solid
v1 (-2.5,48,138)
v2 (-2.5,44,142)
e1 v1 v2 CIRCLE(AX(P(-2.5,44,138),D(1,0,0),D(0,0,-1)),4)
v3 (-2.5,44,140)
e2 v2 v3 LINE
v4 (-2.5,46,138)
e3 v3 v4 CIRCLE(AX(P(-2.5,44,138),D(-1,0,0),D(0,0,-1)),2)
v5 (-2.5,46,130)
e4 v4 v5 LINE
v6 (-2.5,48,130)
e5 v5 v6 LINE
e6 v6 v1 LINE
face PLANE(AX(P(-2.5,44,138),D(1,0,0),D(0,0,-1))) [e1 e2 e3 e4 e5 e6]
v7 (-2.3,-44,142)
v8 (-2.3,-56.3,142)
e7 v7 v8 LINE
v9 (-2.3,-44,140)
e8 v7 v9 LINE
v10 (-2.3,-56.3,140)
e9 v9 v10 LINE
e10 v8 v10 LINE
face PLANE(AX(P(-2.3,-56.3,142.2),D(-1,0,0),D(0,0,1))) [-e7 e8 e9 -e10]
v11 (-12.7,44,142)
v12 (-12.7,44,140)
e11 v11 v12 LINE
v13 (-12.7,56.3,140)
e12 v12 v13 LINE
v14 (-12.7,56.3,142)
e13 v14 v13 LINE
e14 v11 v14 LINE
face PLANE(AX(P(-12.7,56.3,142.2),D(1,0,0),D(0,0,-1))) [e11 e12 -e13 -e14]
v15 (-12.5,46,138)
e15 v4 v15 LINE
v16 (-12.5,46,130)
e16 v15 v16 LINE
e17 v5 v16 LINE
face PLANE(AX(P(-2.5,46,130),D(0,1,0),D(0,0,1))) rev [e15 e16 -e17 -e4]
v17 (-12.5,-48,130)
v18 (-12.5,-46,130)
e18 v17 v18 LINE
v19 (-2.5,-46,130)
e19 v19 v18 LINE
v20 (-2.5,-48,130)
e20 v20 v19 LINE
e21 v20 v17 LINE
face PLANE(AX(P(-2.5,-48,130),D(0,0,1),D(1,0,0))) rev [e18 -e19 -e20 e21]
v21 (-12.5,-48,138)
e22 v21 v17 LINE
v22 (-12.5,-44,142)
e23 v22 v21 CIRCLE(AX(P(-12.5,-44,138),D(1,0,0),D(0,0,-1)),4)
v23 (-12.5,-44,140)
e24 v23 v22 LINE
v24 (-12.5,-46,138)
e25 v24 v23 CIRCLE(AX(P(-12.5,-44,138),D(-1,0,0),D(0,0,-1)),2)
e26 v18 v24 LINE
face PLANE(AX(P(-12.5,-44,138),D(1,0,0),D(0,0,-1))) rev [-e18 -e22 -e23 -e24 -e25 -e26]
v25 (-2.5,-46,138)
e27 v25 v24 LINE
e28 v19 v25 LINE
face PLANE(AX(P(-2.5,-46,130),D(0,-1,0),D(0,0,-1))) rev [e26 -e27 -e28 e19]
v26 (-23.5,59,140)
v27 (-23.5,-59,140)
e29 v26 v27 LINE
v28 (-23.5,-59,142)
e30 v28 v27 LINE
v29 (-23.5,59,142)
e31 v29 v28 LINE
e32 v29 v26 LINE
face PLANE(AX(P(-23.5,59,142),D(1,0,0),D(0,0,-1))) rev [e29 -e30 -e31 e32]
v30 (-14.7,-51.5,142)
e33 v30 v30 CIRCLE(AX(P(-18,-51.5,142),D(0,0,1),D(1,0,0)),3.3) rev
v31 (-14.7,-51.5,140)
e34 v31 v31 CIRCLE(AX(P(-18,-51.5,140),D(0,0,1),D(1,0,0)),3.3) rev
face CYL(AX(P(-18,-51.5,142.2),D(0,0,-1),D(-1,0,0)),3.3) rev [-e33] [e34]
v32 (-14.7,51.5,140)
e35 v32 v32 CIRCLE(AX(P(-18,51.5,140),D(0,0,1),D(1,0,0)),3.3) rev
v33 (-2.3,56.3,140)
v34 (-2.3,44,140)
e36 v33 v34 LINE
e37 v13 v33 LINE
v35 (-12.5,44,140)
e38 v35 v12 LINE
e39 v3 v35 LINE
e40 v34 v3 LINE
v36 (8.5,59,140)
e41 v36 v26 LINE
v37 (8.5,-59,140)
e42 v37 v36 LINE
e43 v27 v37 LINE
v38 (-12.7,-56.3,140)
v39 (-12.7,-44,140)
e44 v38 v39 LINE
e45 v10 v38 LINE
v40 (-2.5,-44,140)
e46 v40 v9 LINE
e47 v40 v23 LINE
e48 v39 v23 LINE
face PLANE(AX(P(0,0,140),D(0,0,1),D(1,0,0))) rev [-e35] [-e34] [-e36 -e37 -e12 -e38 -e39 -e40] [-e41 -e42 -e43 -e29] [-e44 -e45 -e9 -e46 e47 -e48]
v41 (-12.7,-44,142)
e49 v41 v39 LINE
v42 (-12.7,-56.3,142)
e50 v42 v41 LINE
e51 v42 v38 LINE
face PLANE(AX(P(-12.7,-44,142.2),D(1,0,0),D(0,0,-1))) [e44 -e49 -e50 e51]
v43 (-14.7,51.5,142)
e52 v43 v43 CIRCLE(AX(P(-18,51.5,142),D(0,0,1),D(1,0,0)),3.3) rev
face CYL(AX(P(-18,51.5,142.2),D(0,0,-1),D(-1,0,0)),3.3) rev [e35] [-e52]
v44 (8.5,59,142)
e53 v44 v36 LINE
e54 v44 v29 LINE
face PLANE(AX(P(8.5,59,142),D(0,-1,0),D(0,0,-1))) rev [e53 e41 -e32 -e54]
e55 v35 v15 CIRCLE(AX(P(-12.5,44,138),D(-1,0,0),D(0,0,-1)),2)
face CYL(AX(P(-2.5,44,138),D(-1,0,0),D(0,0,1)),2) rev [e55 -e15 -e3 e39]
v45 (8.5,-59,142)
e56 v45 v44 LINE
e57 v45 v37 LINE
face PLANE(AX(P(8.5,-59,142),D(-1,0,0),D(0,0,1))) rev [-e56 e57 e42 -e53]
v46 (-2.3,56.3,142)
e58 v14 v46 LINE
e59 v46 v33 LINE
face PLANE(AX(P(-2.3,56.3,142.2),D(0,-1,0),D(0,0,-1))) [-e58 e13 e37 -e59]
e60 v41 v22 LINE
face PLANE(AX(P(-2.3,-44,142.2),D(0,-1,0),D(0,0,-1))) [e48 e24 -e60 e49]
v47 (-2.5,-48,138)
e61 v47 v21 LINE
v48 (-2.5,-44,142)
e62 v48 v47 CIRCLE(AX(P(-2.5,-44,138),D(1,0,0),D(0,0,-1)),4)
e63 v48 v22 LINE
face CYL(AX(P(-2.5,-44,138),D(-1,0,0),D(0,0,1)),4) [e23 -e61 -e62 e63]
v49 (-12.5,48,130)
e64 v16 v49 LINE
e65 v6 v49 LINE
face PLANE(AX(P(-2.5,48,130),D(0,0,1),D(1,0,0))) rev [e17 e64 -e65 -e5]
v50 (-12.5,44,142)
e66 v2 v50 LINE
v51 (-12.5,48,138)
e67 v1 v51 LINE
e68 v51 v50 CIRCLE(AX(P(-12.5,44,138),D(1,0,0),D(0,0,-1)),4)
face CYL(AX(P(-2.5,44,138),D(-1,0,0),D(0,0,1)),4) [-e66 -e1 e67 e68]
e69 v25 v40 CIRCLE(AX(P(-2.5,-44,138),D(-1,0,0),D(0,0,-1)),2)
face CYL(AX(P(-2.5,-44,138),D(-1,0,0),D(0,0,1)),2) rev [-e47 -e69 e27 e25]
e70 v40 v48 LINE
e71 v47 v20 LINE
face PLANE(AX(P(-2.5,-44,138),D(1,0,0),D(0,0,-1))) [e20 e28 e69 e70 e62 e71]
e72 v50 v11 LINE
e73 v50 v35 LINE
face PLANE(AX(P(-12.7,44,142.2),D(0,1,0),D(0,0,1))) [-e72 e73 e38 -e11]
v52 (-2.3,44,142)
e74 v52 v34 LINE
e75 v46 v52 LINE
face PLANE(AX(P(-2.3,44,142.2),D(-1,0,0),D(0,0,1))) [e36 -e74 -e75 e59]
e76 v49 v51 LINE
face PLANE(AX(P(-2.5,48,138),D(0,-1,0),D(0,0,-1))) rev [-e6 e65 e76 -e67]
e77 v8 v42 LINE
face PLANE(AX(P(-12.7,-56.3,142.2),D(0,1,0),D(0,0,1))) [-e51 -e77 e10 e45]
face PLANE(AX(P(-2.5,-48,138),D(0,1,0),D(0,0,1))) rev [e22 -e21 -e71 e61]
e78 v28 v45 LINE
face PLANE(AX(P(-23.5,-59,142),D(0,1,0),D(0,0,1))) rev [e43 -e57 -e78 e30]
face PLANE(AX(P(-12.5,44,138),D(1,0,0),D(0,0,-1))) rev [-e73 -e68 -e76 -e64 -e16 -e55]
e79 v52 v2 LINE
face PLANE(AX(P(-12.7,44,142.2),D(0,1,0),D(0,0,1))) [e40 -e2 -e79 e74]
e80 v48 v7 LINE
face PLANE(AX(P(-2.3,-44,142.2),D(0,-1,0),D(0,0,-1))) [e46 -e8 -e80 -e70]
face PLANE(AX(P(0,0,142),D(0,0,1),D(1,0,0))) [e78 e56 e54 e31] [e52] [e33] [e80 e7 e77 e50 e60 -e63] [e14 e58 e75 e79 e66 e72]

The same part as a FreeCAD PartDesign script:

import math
import FreeCAD as App
import Part
import Sketcher

V = App.Vector
Q = App.Units.Quantity


def add_polygon(sketch, points):
    """Adds a closed chain of lines whose ends are joined by coincident constraints."""
    first, n = sketch.GeometryCount, len(points)
    for a, b in zip(points, points[1:] + points[:1]):
        sketch.addGeometry(Part.LineSegment(App.Vector(*a, 0), App.Vector(*b, 0)), False)
    for i in range(n):
        sketch.addConstraint(Sketcher.Constraint("Coincident", first + i, 2, first + (i + 1) % n, 1))

doc = App.newDocument("Part")
body = doc.addObject("PartDesign::Body", "Body")

# Sketch on XY plane
sketch1 = doc.addObject("Sketcher::SketchObject", "Sketch")
body.addObject(sketch1)
sketch1.AttachmentSupport = (doc.XY_Plane, [""])
sketch1.MapMode = "FlatFace"
sketch1.AttachmentOffset = App.Placement(V(0, 0, 140), App.Rotation())
add_polygon(sketch1, [(-24, 59), (-24, -59), (8, -59), (8, 59)])  # lines 0-3
sketch1.addConstraint(Sketcher.Constraint("Vertical", 0))
sketch1.addConstraint(Sketcher.Constraint("Horizontal", 1))
sketch1.addConstraint(Sketcher.Constraint("Vertical", 2))
sketch1.addConstraint(Sketcher.Constraint("Horizontal", 3))
sketch1.addConstraint(Sketcher.Constraint("DistanceX", 1, 1, 1, 2, Q("32 mm")))
sketch1.addConstraint(Sketcher.Constraint("DistanceY", 0, 2, 0, 1, Q("118 mm")))
sketch1.addConstraint(Sketcher.Constraint("DistanceY", 0, 2, -1, 1, Q("59 mm")))
sketch1.addConstraint(Sketcher.Constraint("DistanceX", 0, 2, -1, 1, Q("23.5 mm")))
pad1 = doc.addObject("PartDesign::Pad", "Pad")
body.addObject(pad1)
pad1.Profile = sketch1
pad1.Length = 2

# Sketch on XY plane
sketch2 = doc.addObject("Sketcher::SketchObject", "Sketch001")
body.addObject(sketch2)
sketch2.AttachmentSupport = (doc.XY_Plane, [""])
sketch2.MapMode = "FlatFace"
sketch2.AttachmentOffset = App.Placement(V(0, 0, 139.8), App.Rotation())
add_polygon(sketch2, [(-13, -44), (-13, -56), (-2, -56), (-2, -44)])  # lines 0-3
add_polygon(sketch2, [(-13, 56), (-13, 44), (-2, 44), (-2, 56)])  # lines 4-7
sketch2.addConstraint(Sketcher.Constraint("Vertical", 0))
sketch2.addConstraint(Sketcher.Constraint("Horizontal", 1))
sketch2.addConstraint(Sketcher.Constraint("Vertical", 2))
sketch2.addConstraint(Sketcher.Constraint("Horizontal", 3))
sketch2.addConstraint(Sketcher.Constraint("Vertical", 4))
sketch2.addConstraint(Sketcher.Constraint("Horizontal", 5))
sketch2.addConstraint(Sketcher.Constraint("Vertical", 6))
sketch2.addConstraint(Sketcher.Constraint("Horizontal", 7))
sketch2.addConstraint(Sketcher.Constraint("Symmetric", 3, 2, 4, 2, -1))
sketch2.addConstraint(Sketcher.Constraint("Symmetric", 1, 2, 6, 2, -1))
sketch2.addConstraint(Sketcher.Constraint("DistanceX", 1, 1, 1, 2, Q("10.4 mm")))
sketch2.addConstraint(Sketcher.Constraint("DistanceY", 0, 2, 0, 1, Q("12.3 mm")))
sketch2.addConstraint(Sketcher.Constraint("DistanceY", 2, 2, -1, 1, Q("44 mm")))
sketch2.addConstraint(Sketcher.Constraint("DistanceX", 0, 2, -1, 1, Q("12.7 mm")))
pocket1 = doc.addObject("PartDesign::Pocket", "Pocket")
body.addObject(pocket1)
pocket1.Profile = sketch2
pocket1.Length = 2.4
pocket1.Reversed = True

# Sketch on YZ plane
sketch3 = doc.addObject("Sketcher::SketchObject", "Sketch002")
body.addObject(sketch3)
sketch3.AttachmentSupport = (doc.YZ_Plane, [""])
sketch3.MapMode = "FlatFace"
sketch3.AttachmentOffset = App.Placement(V(0, 0, -12.5), App.Rotation())
sketch3.addGeometry(Part.LineSegment(V(-48, 138, 0), V(-48, 130, 0)), False)
sketch3.addGeometry(Part.LineSegment(V(-48, 130, 0), V(-46, 130, 0)), False)
sketch3.addGeometry(Part.LineSegment(V(-46, 130, 0), V(-46, 138, 0)), False)
sketch3.addGeometry(Part.ArcOfCircle(Part.Circle(V(-44, 138, 0), V(0, 0, 1), 2), math.radians(90), math.radians(180)), False)
sketch3.addGeometry(Part.LineSegment(V(-44, 140, 0), V(-44, 142, 0)), False)
sketch3.addGeometry(Part.ArcOfCircle(Part.Circle(V(-44, 138, 0), V(0, 0, 1), 4), math.radians(90), math.radians(180)), False)
sketch3.addGeometry(Part.LineSegment(V(48, 130, 0), V(48, 138, 0)), False)
sketch3.addGeometry(Part.ArcOfCircle(Part.Circle(V(44, 138, 0), V(0, 0, 1), 4), math.radians(0), math.radians(90)), False)
sketch3.addGeometry(Part.LineSegment(V(44, 142, 0), V(44, 140, 0)), False)
sketch3.addGeometry(Part.ArcOfCircle(Part.Circle(V(44, 138, 0), V(0, 0, 1), 2), math.radians(0), math.radians(90)), False)
sketch3.addGeometry(Part.LineSegment(V(46, 138, 0), V(46, 130, 0)), False)
sketch3.addGeometry(Part.LineSegment(V(46, 130, 0), V(48, 130, 0)), False)
sketch3.addConstraint(Sketcher.Constraint("Coincident", 0, 2, 1, 1))
sketch3.addConstraint(Sketcher.Constraint("Coincident", 1, 2, 2, 1))
sketch3.addConstraint(Sketcher.Constraint("Tangent", 2, 2, 3, 2))
sketch3.addConstraint(Sketcher.Constraint("Coincident", 3, 1, 4, 1))
sketch3.addConstraint(Sketcher.Constraint("Coincident", 4, 2, 5, 1))
sketch3.addConstraint(Sketcher.Constraint("Tangent", 5, 2, 0, 1))
sketch3.addConstraint(Sketcher.Constraint("Tangent", 6, 2, 7, 1))
sketch3.addConstraint(Sketcher.Constraint("Coincident", 7, 2, 8, 1))
sketch3.addConstraint(Sketcher.Constraint("Coincident", 8, 2, 9, 2))
sketch3.addConstraint(Sketcher.Constraint("Tangent", 9, 1, 10, 1))
sketch3.addConstraint(Sketcher.Constraint("Coincident", 10, 2, 11, 1))
sketch3.addConstraint(Sketcher.Constraint("Coincident", 11, 2, 6, 1))
sketch3.addConstraint(Sketcher.Constraint("Vertical", 0))
sketch3.addConstraint(Sketcher.Constraint("Horizontal", 1))
sketch3.addConstraint(Sketcher.Constraint("Vertical", 2))
sketch3.addConstraint(Sketcher.Constraint("Vertical", 4))
sketch3.addConstraint(Sketcher.Constraint("Vertical", 6))
sketch3.addConstraint(Sketcher.Constraint("Vertical", 8))
sketch3.addConstraint(Sketcher.Constraint("Vertical", 10))
sketch3.addConstraint(Sketcher.Constraint("Horizontal", 11))
sketch3.addConstraint(Sketcher.Constraint("Coincident", 5, 3, 3, 3))
sketch3.addConstraint(Sketcher.Constraint("Coincident", 9, 3, 7, 3))
sketch3.addConstraint(Sketcher.Constraint("Equal", 5, 7))
sketch3.addConstraint(Sketcher.Constraint("Equal", 3, 9))
sketch3.addConstraint(Sketcher.Constraint("Symmetric", 3, 3, 7, 3, -2))
sketch3.addConstraint(Sketcher.Constraint("Horizontal", 1, 2, 10, 2))
sketch3.addConstraint(Sketcher.Constraint("Vertical", 5, 3, 3, 1))
sketch3.addConstraint(Sketcher.Constraint("Vertical", 9, 3, 7, 2))
sketch3.addConstraint(Sketcher.Constraint("Radius", 3, Q("2 mm")))
sketch3.addConstraint(Sketcher.Constraint("Radius", 5, Q("4 mm")))
sketch3.addConstraint(Sketcher.Constraint("DistanceY", 0, 2, 0, 1, Q("8 mm")))
sketch3.addConstraint(Sketcher.Constraint("DistanceX", 3, 3, -1, 1, Q("44 mm")))
sketch3.addConstraint(Sketcher.Constraint("DistanceY", -1, 1, 3, 3, Q("138 mm")))
pad2 = doc.addObject("PartDesign::Pad", "Pad001")
body.addObject(pad2)
pad2.Profile = sketch3
pad2.Length = 10

# Sketch on XY plane
sketch4 = doc.addObject("Sketcher::SketchObject", "Sketch003")
body.addObject(sketch4)
sketch4.AttachmentSupport = (doc.XY_Plane, [""])
sketch4.MapMode = "FlatFace"
sketch4.AttachmentOffset = App.Placement(V(0, 0, 139.8), App.Rotation())
sketch4.addGeometry(Part.Circle(V(-18, -51.5, 0), V(0, 0, 1), 3.3), False)
sketch4.addGeometry(Part.Circle(V(-18, 51.5, 0), V(0, 0, 1), 3.3), False)
sketch4.addConstraint(Sketcher.Constraint("Equal", 0, 1))
sketch4.addConstraint(Sketcher.Constraint("Symmetric", 0, 3, 1, 3, -1))
sketch4.addConstraint(Sketcher.Constraint("Diameter", 0, Q("6.6 mm")))
sketch4.addConstraint(Sketcher.Constraint("DistanceX", 0, 3, -1, 1, Q("18 mm")))
sketch4.addConstraint(Sketcher.Constraint("DistanceY", 0, 3, 1, 3, Q("103 mm")))
pocket2 = doc.addObject("PartDesign::Pocket", "Pocket001")
body.addObject(pocket2)
pocket2.Profile = sketch4
pocket2.Length = 2.4
pocket2.Reversed = True

doc.recompute()
